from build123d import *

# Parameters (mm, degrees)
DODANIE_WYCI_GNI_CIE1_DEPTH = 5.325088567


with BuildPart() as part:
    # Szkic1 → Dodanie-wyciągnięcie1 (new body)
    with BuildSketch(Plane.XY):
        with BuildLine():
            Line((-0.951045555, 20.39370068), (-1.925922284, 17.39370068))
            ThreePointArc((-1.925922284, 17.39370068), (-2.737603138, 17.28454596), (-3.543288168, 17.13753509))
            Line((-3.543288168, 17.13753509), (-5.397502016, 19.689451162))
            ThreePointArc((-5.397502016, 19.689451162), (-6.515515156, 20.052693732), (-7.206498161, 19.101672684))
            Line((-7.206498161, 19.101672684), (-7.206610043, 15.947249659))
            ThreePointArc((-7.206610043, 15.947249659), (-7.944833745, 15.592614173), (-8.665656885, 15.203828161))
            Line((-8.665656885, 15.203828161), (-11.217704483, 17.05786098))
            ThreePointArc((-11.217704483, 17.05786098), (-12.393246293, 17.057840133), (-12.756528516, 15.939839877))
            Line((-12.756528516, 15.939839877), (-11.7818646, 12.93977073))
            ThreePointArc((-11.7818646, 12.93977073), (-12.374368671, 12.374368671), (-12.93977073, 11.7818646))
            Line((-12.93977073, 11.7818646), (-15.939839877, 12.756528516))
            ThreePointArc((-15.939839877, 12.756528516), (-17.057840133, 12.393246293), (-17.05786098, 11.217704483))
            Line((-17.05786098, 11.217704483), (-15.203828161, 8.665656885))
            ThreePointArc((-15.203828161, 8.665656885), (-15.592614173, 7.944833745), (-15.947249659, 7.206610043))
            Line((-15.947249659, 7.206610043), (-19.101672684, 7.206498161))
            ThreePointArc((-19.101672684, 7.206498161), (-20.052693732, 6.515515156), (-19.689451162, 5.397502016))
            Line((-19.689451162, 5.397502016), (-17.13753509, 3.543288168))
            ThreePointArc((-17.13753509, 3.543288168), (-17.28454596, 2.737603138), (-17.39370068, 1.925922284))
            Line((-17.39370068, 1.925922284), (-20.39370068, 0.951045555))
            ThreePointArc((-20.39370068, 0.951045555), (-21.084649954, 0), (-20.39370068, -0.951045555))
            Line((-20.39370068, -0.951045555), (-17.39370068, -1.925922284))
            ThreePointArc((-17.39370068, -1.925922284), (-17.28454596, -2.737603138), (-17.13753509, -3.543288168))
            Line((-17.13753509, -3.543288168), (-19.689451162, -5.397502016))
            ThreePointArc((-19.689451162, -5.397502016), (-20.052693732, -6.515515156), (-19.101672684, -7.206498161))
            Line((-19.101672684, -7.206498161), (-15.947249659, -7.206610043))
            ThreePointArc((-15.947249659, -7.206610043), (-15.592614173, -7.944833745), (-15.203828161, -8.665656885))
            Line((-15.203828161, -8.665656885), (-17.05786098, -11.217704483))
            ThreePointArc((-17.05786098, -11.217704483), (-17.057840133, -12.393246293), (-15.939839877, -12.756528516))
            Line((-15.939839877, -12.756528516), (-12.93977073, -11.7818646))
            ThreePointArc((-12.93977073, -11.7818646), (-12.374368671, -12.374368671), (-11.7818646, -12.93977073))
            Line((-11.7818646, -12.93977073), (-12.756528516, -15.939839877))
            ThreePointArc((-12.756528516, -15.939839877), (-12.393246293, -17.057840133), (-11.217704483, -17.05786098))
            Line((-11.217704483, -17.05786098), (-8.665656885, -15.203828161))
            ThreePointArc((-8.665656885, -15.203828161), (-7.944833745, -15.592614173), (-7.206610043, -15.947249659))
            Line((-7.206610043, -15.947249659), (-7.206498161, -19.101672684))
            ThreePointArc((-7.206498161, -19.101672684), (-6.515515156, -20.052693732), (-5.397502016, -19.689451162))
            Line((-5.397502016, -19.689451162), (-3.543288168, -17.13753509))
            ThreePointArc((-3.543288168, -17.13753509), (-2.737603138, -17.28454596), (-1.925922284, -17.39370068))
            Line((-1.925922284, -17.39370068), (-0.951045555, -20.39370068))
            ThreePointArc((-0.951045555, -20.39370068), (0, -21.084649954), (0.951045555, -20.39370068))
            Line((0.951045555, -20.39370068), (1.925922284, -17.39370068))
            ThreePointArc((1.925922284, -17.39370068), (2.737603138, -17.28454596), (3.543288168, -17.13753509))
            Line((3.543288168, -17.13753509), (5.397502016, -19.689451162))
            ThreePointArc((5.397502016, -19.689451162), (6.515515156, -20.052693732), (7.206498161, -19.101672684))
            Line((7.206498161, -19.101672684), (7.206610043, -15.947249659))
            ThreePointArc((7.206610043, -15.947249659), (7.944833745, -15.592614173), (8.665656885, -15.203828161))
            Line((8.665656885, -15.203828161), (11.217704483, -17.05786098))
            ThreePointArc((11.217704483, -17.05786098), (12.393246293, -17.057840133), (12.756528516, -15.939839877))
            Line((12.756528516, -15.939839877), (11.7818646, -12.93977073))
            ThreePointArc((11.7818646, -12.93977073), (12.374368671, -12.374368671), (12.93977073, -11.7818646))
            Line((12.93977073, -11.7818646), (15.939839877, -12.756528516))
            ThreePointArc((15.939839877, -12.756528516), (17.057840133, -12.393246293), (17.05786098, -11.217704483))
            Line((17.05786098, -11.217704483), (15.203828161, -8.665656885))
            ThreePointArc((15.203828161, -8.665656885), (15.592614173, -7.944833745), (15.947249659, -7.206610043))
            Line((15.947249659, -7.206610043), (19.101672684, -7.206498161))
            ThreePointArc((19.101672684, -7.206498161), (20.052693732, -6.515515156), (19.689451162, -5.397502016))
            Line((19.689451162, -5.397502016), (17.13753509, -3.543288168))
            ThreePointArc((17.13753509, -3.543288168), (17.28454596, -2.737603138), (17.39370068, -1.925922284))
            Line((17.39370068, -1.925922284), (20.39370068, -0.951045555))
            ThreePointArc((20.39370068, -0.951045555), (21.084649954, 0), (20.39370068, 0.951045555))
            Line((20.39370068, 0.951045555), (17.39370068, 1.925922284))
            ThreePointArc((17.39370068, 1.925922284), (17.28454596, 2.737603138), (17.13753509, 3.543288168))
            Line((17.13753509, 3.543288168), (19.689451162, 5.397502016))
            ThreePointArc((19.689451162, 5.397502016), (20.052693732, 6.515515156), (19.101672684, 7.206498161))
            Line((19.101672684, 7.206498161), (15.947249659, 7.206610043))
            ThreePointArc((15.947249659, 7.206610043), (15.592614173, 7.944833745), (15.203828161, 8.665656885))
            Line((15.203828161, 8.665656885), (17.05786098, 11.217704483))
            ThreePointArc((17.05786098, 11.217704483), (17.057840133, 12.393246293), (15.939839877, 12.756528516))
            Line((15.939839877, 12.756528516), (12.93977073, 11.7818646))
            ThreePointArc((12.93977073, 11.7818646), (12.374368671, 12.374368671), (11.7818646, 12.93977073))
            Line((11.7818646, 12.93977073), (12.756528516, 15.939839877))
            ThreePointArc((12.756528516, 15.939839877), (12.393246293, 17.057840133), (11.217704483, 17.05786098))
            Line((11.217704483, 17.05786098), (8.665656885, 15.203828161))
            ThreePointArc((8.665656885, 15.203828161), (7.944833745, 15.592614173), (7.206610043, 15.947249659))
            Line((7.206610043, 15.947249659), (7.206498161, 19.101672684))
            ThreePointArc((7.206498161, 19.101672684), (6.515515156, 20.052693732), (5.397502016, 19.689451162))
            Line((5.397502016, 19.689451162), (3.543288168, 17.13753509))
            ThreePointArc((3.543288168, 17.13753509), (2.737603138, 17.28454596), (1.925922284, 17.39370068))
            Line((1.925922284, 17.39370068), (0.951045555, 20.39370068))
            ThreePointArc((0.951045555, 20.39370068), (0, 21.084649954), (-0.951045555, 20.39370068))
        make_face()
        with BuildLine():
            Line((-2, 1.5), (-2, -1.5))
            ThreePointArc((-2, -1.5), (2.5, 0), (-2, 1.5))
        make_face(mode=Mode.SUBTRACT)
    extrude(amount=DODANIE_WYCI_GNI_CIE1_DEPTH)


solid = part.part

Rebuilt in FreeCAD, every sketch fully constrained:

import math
import FreeCAD as App
import Part
import Sketcher

V = App.Vector

doc = App.newDocument("Part")
body = doc.addObject("PartDesign::Body", "Body")

sketch1 = doc.addObject("Sketcher::SketchObject", "Sketch")
body.addObject(sketch1)
sketch1.AttachmentSupport = (doc.XY_Plane, [""])
sketch1.MapMode = "FlatFace"
sketch1.addGeometry([
    Part.LineSegment(V(-1, 20.4, 0), V(-1.9, 17.4, 0)),
    Part.ArcOfCircle(Part.Circle(V(0, 0, 0), V(0, 0, 1), 17.5), math.radians(96.32), math.radians(101.68)),
    Part.LineSegment(V(-3.5, 17.1, 0), V(-5.4, 19.7, 0)),
    Part.ArcOfCircle(Part.Circle(V(-6.2, 19.1, 0), V(0, 0, 1), 1), math.radians(36), math.radians(180)),
    Part.LineSegment(V(-7.2, 19.1, 0), V(-7.2, 15.9, 0)),
    Part.ArcOfCircle(Part.Circle(V(0, 0, 0), V(0, 0, 1), 17.5), math.radians(114.32), math.radians(119.68)),
    Part.LineSegment(V(-8.7, 15.2, 0), V(-11.2, 17.1, 0)),
    Part.ArcOfCircle(Part.Circle(V(-11.8, 16.2, 0), V(0, 0, 1), 1), math.radians(54), math.radians(198)),
    Part.LineSegment(V(-12.8, 15.9, 0), V(-11.8, 12.9, 0)),
    Part.ArcOfCircle(Part.Circle(V(0, 0, 0), V(0, 0, 1), 17.5), math.radians(132.32), math.radians(137.68)),
    Part.LineSegment(V(-12.9, 11.8, 0), V(-15.9, 12.8, 0)),
    Part.ArcOfCircle(Part.Circle(V(-16.2, 11.8, 0), V(0, 0, 1), 1), math.radians(72), math.radians(216)),
    Part.LineSegment(V(-17.1, 11.2, 0), V(-15.2, 8.7, 0)),
    Part.ArcOfCircle(Part.Circle(V(0, 0, 0), V(0, 0, 1), 17.5), math.radians(150.32), math.radians(155.68)),
    Part.LineSegment(V(-15.9, 7.2, 0), V(-19.1, 7.2, 0)),
    Part.ArcOfCircle(Part.Circle(V(-19.1, 6.2, 0), V(0, 0, 1), 1), math.radians(90), math.radians(234)),
    Part.LineSegment(V(-19.7, 5.4, 0), V(-17.1, 3.5, 0)),
    Part.ArcOfCircle(Part.Circle(V(0, 0, 0), V(0, 0, 1), 17.5), math.radians(168.32), math.radians(173.68)),
    Part.LineSegment(V(-17.4, 1.9, 0), V(-20.4, 1, 0)),
    Part.ArcOfCircle(Part.Circle(V(-20.1, 0, 0), V(0, 0, 1), 1), math.radians(108), math.radians(252)),
    Part.LineSegment(V(-20.4, -1, 0), V(-17.4, -1.9, 0)),
    Part.ArcOfCircle(Part.Circle(V(0, 0, 0), V(0, 0, 1), 17.5), math.radians(-173.68), math.radians(-168.32)),
    Part.LineSegment(V(-17.1, -3.5, 0), V(-19.7, -5.4, 0)),
    Part.ArcOfCircle(Part.Circle(V(-19.1, -6.2, 0), V(0, 0, 1), 1), math.radians(126), math.radians(270)),
    Part.LineSegment(V(-19.1, -7.2, 0), V(-15.9, -7.2, 0)),
    Part.ArcOfCircle(Part.Circle(V(0, 0, 0), V(0, 0, 1), 17.5), math.radians(-155.68), math.radians(-150.32)),
    Part.LineSegment(V(-15.2, -8.7, 0), V(-17.1, -11.2, 0)),
    Part.ArcOfCircle(Part.Circle(V(-16.2, -11.8, 0), V(0, 0, 1), 1), math.radians(144), math.radians(288)),
    Part.LineSegment(V(-15.9, -12.8, 0), V(-12.9, -11.8, 0)),
    Part.ArcOfCircle(Part.Circle(V(0, 0, 0), V(0, 0, 1), 17.5), math.radians(-137.68), math.radians(-132.32)),
    Part.LineSegment(V(-11.8, -12.9, 0), V(-12.8, -15.9, 0)),
    Part.ArcOfCircle(Part.Circle(V(-11.8, -16.2, 0), V(0, 0, 1), 1), math.radians(162), math.radians(306)),
    Part.LineSegment(V(-11.2, -17.1, 0), V(-8.7, -15.2, 0)),
    Part.ArcOfCircle(Part.Circle(V(0, 0, 0), V(0, 0, 1), 17.5), math.radians(-119.68), math.radians(-114.32)),
    Part.LineSegment(V(-7.2, -15.9, 0), V(-7.2, -19.1, 0)),
    Part.ArcOfCircle(Part.Circle(V(-6.2, -19.1, 0), V(0, 0, 1), 1), math.radians(-180), math.radians(-36)),
    Part.LineSegment(V(-5.4, -19.7, 0), V(-3.5, -17.1, 0)),
    Part.ArcOfCircle(Part.Circle(V(0, 0, 0), V(0, 0, 1), 17.5), math.radians(-101.68), math.radians(-96.32)),
    Part.LineSegment(V(-1.9, -17.4, 0), V(-1, -20.4, 0)),
    Part.ArcOfCircle(Part.Circle(V(0, -20.1, 0), V(0, 0, 1), 1), math.radians(-162), math.radians(-18)),
    Part.LineSegment(V(1, -20.4, 0), V(1.9, -17.4, 0)),
    Part.ArcOfCircle(Part.Circle(V(0, 0, 0), V(0, 0, 1), 17.5), math.radians(-83.68), math.radians(-78.32)),
    Part.LineSegment(V(3.5, -17.1, 0), V(5.4, -19.7, 0)),
    Part.ArcOfCircle(Part.Circle(V(6.2, -19.1, 0), V(0, 0, 1), 1), math.radians(-144), math.radians(0)),
    Part.LineSegment(V(7.2, -19.1, 0), V(7.2, -15.9, 0)),
    Part.ArcOfCircle(Part.Circle(V(0, 0, 0), V(0, 0, 1), 17.5), math.radians(-65.68), math.radians(-60.32)),
    Part.LineSegment(V(8.7, -15.2, 0), V(11.2, -17.1, 0)),
    Part.ArcOfCircle(Part.Circle(V(11.8, -16.2, 0), V(0, 0, 1), 1), math.radians(-126), math.radians(18)),
    Part.LineSegment(V(12.8, -15.9, 0), V(11.8, -12.9, 0)),
    Part.ArcOfCircle(Part.Circle(V(0, 0, 0), V(0, 0, 1), 17.5), math.radians(-47.68), math.radians(-42.32)),
    Part.LineSegment(V(12.9, -11.8, 0), V(15.9, -12.8, 0)),
    Part.ArcOfCircle(Part.Circle(V(16.2, -11.8, 0), V(0, 0, 1), 1), math.radians(-108), math.radians(36)),
    Part.LineSegment(V(17.1, -11.2, 0), V(15.2, -8.7, 0)),
    Part.ArcOfCircle(Part.Circle(V(0, 0, 0), V(0, 0, 1), 17.5), math.radians(-29.68), math.radians(-24.32)),
    Part.LineSegment(V(15.9, -7.2, 0), V(19.1, -7.2, 0)),
    Part.ArcOfCircle(Part.Circle(V(19.1, -6.2, 0), V(0, 0, 1), 1), math.radians(-90), math.radians(54)),
    Part.LineSegment(V(19.7, -5.4, 0), V(17.1, -3.5, 0)),
    Part.ArcOfCircle(Part.Circle(V(0, 0, 0), V(0, 0, 1), 17.5), math.radians(-11.68), math.radians(-6.32)),
    Part.LineSegment(V(17.4, -1.9, 0), V(20.4, -1, 0)),
    Part.ArcOfCircle(Part.Circle(V(20.1, 0, 0), V(0, 0, 1), 1), math.radians(-72), math.radians(72)),
    Part.LineSegment(V(20.4, 1, 0), V(17.4, 1.9, 0)),
    Part.ArcOfCircle(Part.Circle(V(0, 0, 0), V(0, 0, 1), 17.5), math.radians(6.32), math.radians(11.68)),
    Part.LineSegment(V(17.1, 3.5, 0), V(19.7, 5.4, 0)),
    Part.ArcOfCircle(Part.Circle(V(19.1, 6.2, 0), V(0, 0, 1), 1), math.radians(-54), math.radians(90)),
    Part.LineSegment(V(19.1, 7.2, 0), V(15.9, 7.2, 0)),
    Part.ArcOfCircle(Part.Circle(V(0, 0, 0), V(0, 0, 1), 17.5), math.radians(24.32), math.radians(29.68)),
    Part.LineSegment(V(15.2, 8.7, 0), V(17.1, 11.2, 0)),
    Part.ArcOfCircle(Part.Circle(V(16.2, 11.8, 0), V(0, 0, 1), 1), math.radians(-36), math.radians(108)),
    Part.LineSegment(V(15.9, 12.8, 0), V(12.9, 11.8, 0)),
    Part.ArcOfCircle(Part.Circle(V(0, 0, 0), V(0, 0, 1), 17.5), math.radians(42.32), math.radians(47.68)),
    Part.LineSegment(V(11.8, 12.9, 0), V(12.8, 15.9, 0)),
    Part.ArcOfCircle(Part.Circle(V(11.8, 16.2, 0), V(0, 0, 1), 1), math.radians(-18), math.radians(126)),
    Part.LineSegment(V(11.2, 17.1, 0), V(8.7, 15.2, 0)),
    Part.ArcOfCircle(Part.Circle(V(0, 0, 0), V(0, 0, 1), 17.5), math.radians(60.32), math.radians(65.68)),
    Part.LineSegment(V(7.2, 15.9, 0), V(7.2, 19.1, 0)),
    Part.ArcOfCircle(Part.Circle(V(6.2, 19.1, 0), V(0, 0, 1), 1), math.radians(0), math.radians(144)),
    Part.LineSegment(V(5.4, 19.7, 0), V(3.5, 17.1, 0)),
    Part.ArcOfCircle(Part.Circle(V(0, 0, 0), V(0, 0, 1), 17.5), math.radians(78.32), math.radians(83.68)),
    Part.LineSegment(V(1.9, 17.4, 0), V(1, 20.4, 0)),
    Part.ArcOfCircle(Part.Circle(V(0, 20.1, 0), V(0, 0, 1), 1), math.radians(18), math.radians(162)),
    Part.LineSegment(V(-2, -1.5, 0), V(-2, 1.5, 0)),
    Part.ArcOfCircle(Part.Circle(V(0, 0, 0), V(0, 0, 1), 2.5), math.radians(-143), math.radians(143)),
], False)
sketch1.addConstraint([
    Sketcher.Constraint("Coincident", 0, 2, 1, 1),
    Sketcher.Constraint("Coincident", 1, 2, 2, 1),
    Sketcher.Constraint("Tangent", 2, 2, 3, 1),
    Sketcher.Constraint("Tangent", 3, 2, 4, 1),
    Sketcher.Constraint("Coincident", 4, 2, 5, 1),
    Sketcher.Constraint("Coincident", 5, 2, 6, 1),
    Sketcher.Constraint("Tangent", 6, 2, 7, 1),
    Sketcher.Constraint("Tangent", 7, 2, 8, 1),
    Sketcher.Constraint("Coincident", 8, 2, 9, 1),
    Sketcher.Constraint("Coincident", 9, 2, 10, 1),
    Sketcher.Constraint("Tangent", 10, 2, 11, 1),
    Sketcher.Constraint("Tangent", 11, 2, 12, 1),
    Sketcher.Constraint("Coincident", 12, 2, 13, 1),
    Sketcher.Constraint("Coincident", 13, 2, 14, 1),
    Sketcher.Constraint("Tangent", 14, 2, 15, 1),
    Sketcher.Constraint("Tangent", 15, 2, 16, 1),
    Sketcher.Constraint("Coincident", 16, 2, 17, 1),
    Sketcher.Constraint("Coincident", 17, 2, 18, 1),
    Sketcher.Constraint("Tangent", 18, 2, 19, 1),
    Sketcher.Constraint("Tangent", 19, 2, 20, 1),
    Sketcher.Constraint("Coincident", 20, 2, 21, 1),
    Sketcher.Constraint("Coincident", 21, 2, 22, 1),
    Sketcher.Constraint("Tangent", 22, 2, 23, 1),
    Sketcher.Constraint("Tangent", 23, 2, 24, 1),
    Sketcher.Constraint("Coincident", 24, 2, 25, 1),
    Sketcher.Constraint("Coincident", 25, 2, 26, 1),
    Sketcher.Constraint("Tangent", 26, 2, 27, 1),
    Sketcher.Constraint("Tangent", 27, 2, 28, 1),
    Sketcher.Constraint("Coincident", 28, 2, 29, 1),
    Sketcher.Constraint("Coincident", 29, 2, 30, 1),
    Sketcher.Constraint("Tangent", 30, 2, 31, 1),
    Sketcher.Constraint("Tangent", 31, 2, 32, 1),
    Sketcher.Constraint("Coincident", 32, 2, 33, 1),
    Sketcher.Constraint("Coincident", 33, 2, 34, 1),
    Sketcher.Constraint("Tangent", 34, 2, 35, 1),
    Sketcher.Constraint("Tangent", 35, 2, 36, 1),
    Sketcher.Constraint("Coincident", 36, 2, 37, 1),
    Sketcher.Constraint("Coincident", 37, 2, 38, 1),
    Sketcher.Constraint("Tangent", 38, 2, 39, 1),
    Sketcher.Constraint("Tangent", 39, 2, 40, 1),
    Sketcher.Constraint("Coincident", 40, 2, 41, 1),
    Sketcher.Constraint("Coincident", 41, 2, 42, 1),
    Sketcher.Constraint("Tangent", 42, 2, 43, 1),
    Sketcher.Constraint("Tangent", 43, 2, 44, 1),
    Sketcher.Constraint("Coincident", 44, 2, 45, 1),
    Sketcher.Constraint("Coincident", 45, 2, 46, 1),
    Sketcher.Constraint("Tangent", 46, 2, 47, 1),
    Sketcher.Constraint("Tangent", 47, 2, 48, 1),
    Sketcher.Constraint("Coincident", 48, 2, 49, 1),
    Sketcher.Constraint("Coincident", 49, 2, 50, 1),
    Sketcher.Constraint("Tangent", 50, 2, 51, 1),
    Sketcher.Constraint("Tangent", 51, 2, 52, 1),
    Sketcher.Constraint("Coincident", 52, 2, 53, 1),
    Sketcher.Constraint("Coincident", 53, 2, 54, 1),
    Sketcher.Constraint("Tangent", 54, 2, 55, 1),
    Sketcher.Constraint("Tangent", 55, 2, 56, 1),
    Sketcher.Constraint("Coincident", 56, 2, 57, 1),
    Sketcher.Constraint("Coincident", 57, 2, 58, 1),
    Sketcher.Constraint("Tangent", 58, 2, 59, 1),
    Sketcher.Constraint("Tangent", 59, 2, 60, 1),
    Sketcher.Constraint("Coincident", 60, 2, 61, 1),
    Sketcher.Constraint("Coincident", 61, 2, 62, 1),
    Sketcher.Constraint("Tangent", 62, 2, 63, 1),
    Sketcher.Constraint("Tangent", 63, 2, 64, 1),
    Sketcher.Constraint("Coincident", 64, 2, 65, 1),
    Sketcher.Constraint("Coincident", 65, 2, 66, 1),
    Sketcher.Constraint("Tangent", 66, 2, 67, 1),
    Sketcher.Constraint("Tangent", 67, 2, 68, 1),
    Sketcher.Constraint("Coincident", 68, 2, 69, 1),
    Sketcher.Constraint("Coincident", 69, 2, 70, 1),
    Sketcher.Constraint("Tangent", 70, 2, 71, 1),
    Sketcher.Constraint("Tangent", 71, 2, 72, 1),
    Sketcher.Constraint("Coincident", 72, 2, 73, 1),
    Sketcher.Constraint("Coincident", 73, 2, 74, 1),
    Sketcher.Constraint("Tangent", 74, 2, 75, 1),
    Sketcher.Constraint("Tangent", 75, 2, 76, 1),
    Sketcher.Constraint("Coincident", 76, 2, 77, 1),
    Sketcher.Constraint("Coincident", 77, 2, 78, 1),
    Sketcher.Constraint("Tangent", 78, 2, 79, 1),
    Sketcher.Constraint("Tangent", 79, 2, 0, 1),
    Sketcher.Constraint("Coincident", 80, 1, 81, 1),
    Sketcher.Constraint("Coincident", 81, 2, 80, 2),
    Sketcher.Constraint("Vertical", 80),
    Sketcher.Constraint("Coincident", 1, 3, -1, 1),
    Sketcher.Constraint("Coincident", 5, 3, -1, 1),
    Sketcher.Constraint("Coincident", 9, 3, -1, 1),
    Sketcher.Constraint("Coincident", 13, 3, -1, 1),
    Sketcher.Constraint("Coincident", 17, 3, -1, 1),
    Sketcher.Constraint("Coincident", 21, 3, -1, 1),
    Sketcher.Constraint("Coincident", 25, 3, -1, 1),
    Sketcher.Constraint("Coincident", 29, 3, -1, 1),
    Sketcher.Constraint("Coincident", 33, 3, -1, 1),
    Sketcher.Constraint("Coincident", 37, 3, -1, 1),
    Sketcher.Constraint("Coincident", 41, 3, -1, 1),
    Sketcher.Constraint("Coincident", 45, 3, -1, 1),
    Sketcher.Constraint("Coincident", 49, 3, -1, 1),
    Sketcher.Constraint("Coincident", 53, 3, -1, 1),
    Sketcher.Constraint("Coincident", 57, 3, -1, 1),
    Sketcher.Constraint("Coincident", 61, 3, -1, 1),
    Sketcher.Constraint("Coincident", 65, 3, -1, 1),
    Sketcher.Constraint("Coincident", 69, 3, -1, 1),
    Sketcher.Constraint("Coincident", 73, 3, -1, 1),
    Sketcher.Constraint("Coincident", 77, 3, -1, 1),
    Sketcher.Constraint("Coincident", 81, 3, -1, 1),
    Sketcher.Constraint("Equal", 1, 5),
    Sketcher.Constraint("Equal", 3, 7),
    Sketcher.Constraint("Equal", 5, 9),
    Sketcher.Constraint("Equal", 7, 11),
    Sketcher.Constraint("Equal", 9, 13),
    Sketcher.Constraint("Equal", 11, 15),
    Sketcher.Constraint("Equal", 13, 17),
    Sketcher.Constraint("Equal", 15, 19),
    Sketcher.Constraint("Equal", 17, 21),
    Sketcher.Constraint("Equal", 19, 23),
    Sketcher.Constraint("Equal", 21, 25),
    Sketcher.Constraint("Equal", 23, 27),
    Sketcher.Constraint("Equal", 25, 29),
    Sketcher.Constraint("Equal", 27, 31),
    Sketcher.Constraint("Equal", 29, 33),
    Sketcher.Constraint("Equal", 31, 35),
    Sketcher.Constraint("Equal", 33, 37),
    Sketcher.Constraint("Equal", 35, 39),
    Sketcher.Constraint("Equal", 37, 41),
    Sketcher.Constraint("Equal", 39, 43),
    Sketcher.Constraint("Equal", 41, 45),
    Sketcher.Constraint("Equal", 43, 47),
    Sketcher.Constraint("Equal", 45, 49),
    Sketcher.Constraint("Equal", 47, 51),
    Sketcher.Constraint("Equal", 49, 53),
    Sketcher.Constraint("Equal", 51, 55),
    Sketcher.Constraint("Equal", 53, 57),
    Sketcher.Constraint("Equal", 55, 59),
    Sketcher.Constraint("Equal", 57, 61),
    Sketcher.Constraint("Equal", 59, 63),
    Sketcher.Constraint("Equal", 61, 65),
    Sketcher.Constraint("Equal", 63, 67),
    Sketcher.Constraint("Equal", 65, 69),
    Sketcher.Constraint("Equal", 67, 71),
    Sketcher.Constraint("Equal", 69, 73),
    Sketcher.Constraint("Equal", 71, 75),
    Sketcher.Constraint("Equal", 73, 77),
    Sketcher.Constraint("Equal", 75, 79),
    Sketcher.Constraint("Symmetric", 3, 3, 43, 3, -1, 1),
    Sketcher.Constraint("Symmetric", 7, 3, 47, 3, -1, 1),
    Sketcher.Constraint("Symmetric", 11, 3, 51, 3, -1, 1),
    Sketcher.Constraint("Symmetric", 15, 3, 55, 3, -1, 1),
    Sketcher.Constraint("Symmetric", 19, 3, 59, 3, -1, 1),
    Sketcher.Constraint("Symmetric", 23, 3, 63, 3, -1, 1),
    Sketcher.Constraint("Symmetric", 27, 3, 67, 3, -1, 1),
    Sketcher.Constraint("Symmetric", 31, 3, 71, 3, -1, 1),
    Sketcher.Constraint("Symmetric", 35, 3, 75, 3, -1, 1),
    Sketcher.Constraint("Symmetric", 39, 3, 79, 3, -1, 1),
    Sketcher.Constraint("Symmetric", 35, 3, 43, 3, -2),
    Sketcher.Constraint("Symmetric", 31, 3, 47, 3, -2),
    Sketcher.Constraint("Symmetric", 27, 3, 51, 3, -2),
    Sketcher.Constraint("Symmetric", 23, 3, 55, 3, -2),
    Sketcher.Constraint("Symmetric", 38, 2, 39, 2, -2),
    Sketcher.Constraint("Symmetric", 19, 2, 58, 2, -2),
    Sketcher.Constraint("Perpendicular", 0, 20),
    Sketcher.Constraint("Perpendicular", 2, 22),
    Sketcher.Constraint("Perpendicular", 4, 24),
    Sketcher.Constraint("Perpendicular", 6, 26),
    Sketcher.Constraint("Perpendicular", 8, 28),
    Sketcher.Constraint("Perpendicular", 10, 30),
    Sketcher.Constraint("Perpendicular", 12, 32),
    Sketcher.Constraint("Perpendicular", 14, 34),
    Sketcher.Constraint("Perpendicular", 16, 36),
    Sketcher.Constraint("Perpendicular", 18, 38),
    Sketcher.Constraint("Perpendicular", 20, 40),
    Sketcher.Constraint("Perpendicular", 22, 42),
    Sketcher.Constraint("Perpendicular", 24, 44),
    Sketcher.Constraint("Perpendicular", 26, 46),
    Sketcher.Constraint("Perpendicular", 28, 48),
    Sketcher.Constraint("Perpendicular", 30, 50),
    Sketcher.Constraint("Perpendicular", 32, 52),
    Sketcher.Constraint("Perpendicular", 34, 54),
    Sketcher.Constraint("Perpendicular", 36, 56),
    Sketcher.Constraint("Perpendicular", 40, 60),
    Sketcher.Constraint("Perpendicular", 42, 62),
    Sketcher.Constraint("Perpendicular", 44, 64),
    Sketcher.Constraint("Perpendicular", 46, 66),
    Sketcher.Constraint("Perpendicular", 48, 68),
    Sketcher.Constraint("Perpendicular", 50, 70),
    Sketcher.Constraint("Perpendicular", 52, 72),
    Sketcher.Constraint("Perpendicular", 54, 74),
    Sketcher.Constraint("Perpendicular", 56, 76),
    Sketcher.Constraint("Perpendicular", 58, 78),
    Sketcher.Constraint("Horizontal", 36, 2, 41, 2),
    Sketcher.Constraint("Horizontal", 34, 2, 43, 2),
    Sketcher.Constraint("Horizontal", 32, 2, 45, 2),
    Sketcher.Constraint("Horizontal", 30, 2, 47, 2),
    Sketcher.Constraint("Equal", 0, 2),
    Sketcher.Constraint("Equal", 2, 4),
    Sketcher.Constraint("Equal", 4, 6),
    Sketcher.Constraint("Equal", 6, 8),
    Sketcher.Constraint("Equal", 8, 10),
    Sketcher.Constraint("Equal", 10, 12),
    Sketcher.Constraint("Equal", 12, 14),
    Sketcher.Constraint("Equal", 14, 16),
    Sketcher.Constraint("Equal", 16, 18),
    Sketcher.Constraint("Radius", 3, 1.0),
    Sketcher.Constraint("Radius", 1, 17.5),
    Sketcher.Constraint("Radius", 81, 2.5),
    Sketcher.Constraint("DistanceY", 80, 1, 80, 2, 3.0),
    Sketcher.Constraint("DistanceX", 3, 3, -1, 1, 6.206498),
    Sketcher.Constraint("DistanceY", -1, 1, 0, 2, 17.393701),
    Sketcher.Constraint("DistanceX", 18, 2, -1, 1, 20.393701),
    Sketcher.Constraint("DistanceX", 7, 3, -1, 1, 11.805461),
    Sketcher.Constraint("DistanceX", 1, 2, -1, 1, 3.543288),
    Sketcher.Constraint("DistanceY", -1, 1, 5, 2, 15.203828),
])
pad1 = doc.addObject("PartDesign::Pad", "Pad")
body.addObject(pad1)
pad1.Profile = sketch1
pad1.Length = 5.325089

doc.recompute()
